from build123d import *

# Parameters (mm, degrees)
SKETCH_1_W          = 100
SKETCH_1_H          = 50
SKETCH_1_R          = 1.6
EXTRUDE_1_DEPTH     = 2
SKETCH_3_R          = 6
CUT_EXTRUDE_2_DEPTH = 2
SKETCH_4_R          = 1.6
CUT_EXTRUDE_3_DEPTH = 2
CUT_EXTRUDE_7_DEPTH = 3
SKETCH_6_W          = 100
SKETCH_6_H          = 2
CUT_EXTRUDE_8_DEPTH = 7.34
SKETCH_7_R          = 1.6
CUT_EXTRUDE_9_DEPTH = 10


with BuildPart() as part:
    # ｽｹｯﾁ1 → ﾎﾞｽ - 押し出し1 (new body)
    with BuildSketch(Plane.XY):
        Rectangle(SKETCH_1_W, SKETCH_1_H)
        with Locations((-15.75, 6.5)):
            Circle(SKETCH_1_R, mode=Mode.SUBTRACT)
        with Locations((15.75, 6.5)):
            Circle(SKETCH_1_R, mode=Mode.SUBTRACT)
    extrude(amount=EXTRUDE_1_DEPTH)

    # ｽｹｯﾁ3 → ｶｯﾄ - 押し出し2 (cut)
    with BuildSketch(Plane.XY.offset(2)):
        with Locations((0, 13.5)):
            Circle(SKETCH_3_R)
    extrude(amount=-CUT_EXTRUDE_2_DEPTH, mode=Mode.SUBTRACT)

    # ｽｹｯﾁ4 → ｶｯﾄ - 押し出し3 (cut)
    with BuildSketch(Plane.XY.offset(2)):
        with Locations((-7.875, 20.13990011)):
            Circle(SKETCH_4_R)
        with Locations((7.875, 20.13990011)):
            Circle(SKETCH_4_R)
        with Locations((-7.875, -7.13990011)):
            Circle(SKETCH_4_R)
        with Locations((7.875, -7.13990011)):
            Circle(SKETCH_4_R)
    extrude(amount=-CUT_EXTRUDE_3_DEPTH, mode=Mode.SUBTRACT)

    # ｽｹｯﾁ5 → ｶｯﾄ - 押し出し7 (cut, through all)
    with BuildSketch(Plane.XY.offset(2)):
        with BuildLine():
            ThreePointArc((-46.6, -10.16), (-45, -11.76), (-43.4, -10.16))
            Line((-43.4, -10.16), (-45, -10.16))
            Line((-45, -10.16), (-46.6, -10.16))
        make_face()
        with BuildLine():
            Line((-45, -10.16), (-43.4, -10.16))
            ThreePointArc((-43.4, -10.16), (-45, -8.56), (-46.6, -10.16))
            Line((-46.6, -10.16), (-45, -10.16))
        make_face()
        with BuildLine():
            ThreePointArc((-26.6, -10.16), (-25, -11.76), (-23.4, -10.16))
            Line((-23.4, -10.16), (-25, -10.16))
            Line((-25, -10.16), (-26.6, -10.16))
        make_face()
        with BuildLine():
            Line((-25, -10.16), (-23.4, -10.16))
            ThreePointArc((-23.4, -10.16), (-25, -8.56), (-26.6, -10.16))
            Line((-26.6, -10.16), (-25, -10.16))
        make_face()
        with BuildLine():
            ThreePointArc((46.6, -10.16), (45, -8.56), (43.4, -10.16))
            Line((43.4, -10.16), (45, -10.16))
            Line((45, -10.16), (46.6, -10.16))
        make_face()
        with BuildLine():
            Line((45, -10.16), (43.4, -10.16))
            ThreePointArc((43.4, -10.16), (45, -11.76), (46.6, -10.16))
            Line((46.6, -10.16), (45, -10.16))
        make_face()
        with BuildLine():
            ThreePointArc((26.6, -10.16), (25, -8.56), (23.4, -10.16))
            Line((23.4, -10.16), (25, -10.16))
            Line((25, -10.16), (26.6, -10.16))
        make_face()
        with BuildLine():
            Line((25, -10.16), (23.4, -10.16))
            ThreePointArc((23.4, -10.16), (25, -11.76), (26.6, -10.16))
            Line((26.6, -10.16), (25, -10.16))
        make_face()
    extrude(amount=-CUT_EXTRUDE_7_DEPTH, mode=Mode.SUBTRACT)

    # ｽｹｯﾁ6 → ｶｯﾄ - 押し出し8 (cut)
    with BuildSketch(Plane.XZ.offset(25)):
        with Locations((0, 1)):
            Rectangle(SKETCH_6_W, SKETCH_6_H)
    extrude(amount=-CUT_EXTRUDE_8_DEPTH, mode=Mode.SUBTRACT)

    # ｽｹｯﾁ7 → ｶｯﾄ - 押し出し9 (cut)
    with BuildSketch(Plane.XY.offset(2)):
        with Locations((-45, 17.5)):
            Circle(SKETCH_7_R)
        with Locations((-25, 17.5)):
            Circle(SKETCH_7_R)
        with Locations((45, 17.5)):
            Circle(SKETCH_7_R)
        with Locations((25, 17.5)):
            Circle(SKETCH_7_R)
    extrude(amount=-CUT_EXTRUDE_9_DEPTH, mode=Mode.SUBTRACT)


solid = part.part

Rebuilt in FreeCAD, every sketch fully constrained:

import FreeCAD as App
import Part
import Sketcher
Q = App.Units.Quantity

doc = App.newDocument("Part")
params = doc.addObject("Spreadsheet::Sheet", "Params")
for row, (alias, value) in enumerate([
    ("sketch1_diameter", "3.2 mm"),
    ("sketch1_width", "100 mm"),
    ("sketch1_height", "50 mm"),
    ("pad1_length", "2 mm"),
    ("sketch2_diameter", "12 mm"),
    ("pocket1_length", "2 mm"),
    ("sketch3_diameter", "3.2 mm"),
    ("pocket2_length", "2 mm"),
    ("sketch4_diameter", "3.2 mm"),
    ("sketch5_width", "100 mm"),
    ("sketch5_height", "2 mm"),
    ("pocket4_length", "7.34 mm"),
    ("sketch6_diameter", "3.2 mm"),
    ("pocket5_length", "10 mm"),
], start=1):
    params.set(f"A{row}", alias)
    params.set(f"B{row}", "=" + value)
    params.setAlias(f"B{row}", alias)

body = doc.addObject("PartDesign::Body", "Body")

# Sketch on XY plane
sketch1 = body.newObject("Sketcher::SketchObject", "Sketch")
sketch1.AttachmentSupport = (doc.getObject("XY_Plane"), [""])
sketch1.MapMode = "FlatFace"
sketch1.addGeometry(Part.LineSegment(App.Vector(-50, 25, 0), App.Vector(-50, -25, 0)), False)
sketch1.addGeometry(Part.LineSegment(App.Vector(-50, -25, 0), App.Vector(50, -25, 0)), False)
sketch1.addGeometry(Part.LineSegment(App.Vector(50, -25, 0), App.Vector(50, 25, 0)), False)
sketch1.addGeometry(Part.LineSegment(App.Vector(50, 25, 0), App.Vector(-50, 25, 0)), False)
sketch1.addGeometry(Part.Circle(App.Vector(-15.75, 6.5, 0), App.Vector(0, 0, 1), 1.6), False)
sketch1.addGeometry(Part.Circle(App.Vector(15.75, 6.5, 0), App.Vector(0, 0, 1), 1.6), False)
sketch1.addConstraint(Sketcher.Constraint("Coincident", 0, 2, 1, 1))
sketch1.addConstraint(Sketcher.Constraint("Coincident", 1, 2, 2, 1))
sketch1.addConstraint(Sketcher.Constraint("Coincident", 2, 2, 3, 1))
sketch1.addConstraint(Sketcher.Constraint("Coincident", 3, 2, 0, 1))
sketch1.addConstraint(Sketcher.Constraint("Vertical", 0))
sketch1.addConstraint(Sketcher.Constraint("Horizontal", 1))
sketch1.addConstraint(Sketcher.Constraint("Vertical", 2))
sketch1.addConstraint(Sketcher.Constraint("Horizontal", 3))
sketch1.addConstraint(Sketcher.Constraint("Equal", 4, 5))
sketch1.addConstraint(Sketcher.Constraint("Symmetric", 0, 2, 2, 2, -1, 1))
sketch1.addConstraint(Sketcher.Constraint("Symmetric", 4, 3, 5, 3, -2))
sketch1.addConstraint(Sketcher.Constraint("Diameter", 4, Q("3.2 mm")))
sketch1.addConstraint(Sketcher.Constraint("DistanceX", 1, 1, 1, 2, Q("100 mm")))
sketch1.addConstraint(Sketcher.Constraint("DistanceY", 0, 2, 0, 1, Q("50 mm")))
sketch1.addConstraint(Sketcher.Constraint("DistanceY", -1, 1, 4, 3, Q("6.5 mm")))
sketch1.addConstraint(Sketcher.Constraint("DistanceX", 4, 3, 5, 3, Q("31.5 mm")))
sketch1.setExpression("Constraints[11]", "Params.sketch1_diameter")
sketch1.setExpression("Constraints[12]", "Params.sketch1_width")
sketch1.setExpression("Constraints[13]", "Params.sketch1_height")
pad1 = body.newObject("PartDesign::Pad", "Pad")
pad1.Profile = sketch1
pad1.setExpression("Length", "Params.pad1_length")

# Sketch on XY plane
sketch2 = body.newObject("Sketcher::SketchObject", "Sketch001")
sketch2.AttachmentSupport = (doc.getObject("XY_Plane"), [""])
sketch2.MapMode = "FlatFace"
sketch2.AttachmentOffset = App.Placement(App.Vector(0, 0, 2), App.Rotation())
sketch2.addGeometry(Part.Circle(App.Vector(0, 13.5, 0), App.Vector(0, 0, 1), 6), False)
sketch2.addConstraint(Sketcher.Constraint("PointOnObject", 0, 3, -2))
sketch2.addConstraint(Sketcher.Constraint("Diameter", 0, Q("12 mm")))
sketch2.addConstraint(Sketcher.Constraint("DistanceY", -1, 1, 0, 3, Q("13.5 mm")))
sketch2.setExpression("Constraints[1]", "Params.sketch2_diameter")
pocket1 = body.newObject("PartDesign::Pocket", "Pocket")
pocket1.Profile = sketch2
pocket1.setExpression("Length", "Params.pocket1_length")

# Sketch on XY plane
sketch3 = body.newObject("Sketcher::SketchObject", "Sketch002")
sketch3.AttachmentSupport = (doc.getObject("XY_Plane"), [""])
sketch3.MapMode = "FlatFace"
sketch3.AttachmentOffset = App.Placement(App.Vector(0, 0, 2), App.Rotation())
sketch3.addGeometry(Part.Circle(App.Vector(-7.875, 20.1399, 0), App.Vector(0, 0, 1), 1.6), False)
sketch3.addGeometry(Part.Circle(App.Vector(7.875, 20.1399, 0), App.Vector(0, 0, 1), 1.6), False)
sketch3.addGeometry(Part.Circle(App.Vector(-7.875, -7.1399, 0), App.Vector(0, 0, 1), 1.6), False)
sketch3.addGeometry(Part.Circle(App.Vector(7.875, -7.1399, 0), App.Vector(0, 0, 1), 1.6), False)
sketch3.addConstraint(Sketcher.Constraint("Equal", 0, 1))
sketch3.addConstraint(Sketcher.Constraint("Equal", 1, 2))
sketch3.addConstraint(Sketcher.Constraint("Equal", 2, 3))
sketch3.addConstraint(Sketcher.Constraint("Symmetric", 0, 3, 1, 3, -2))
sketch3.addConstraint(Sketcher.Constraint("Symmetric", 2, 3, 3, 3, -2))
sketch3.addConstraint(Sketcher.Constraint("Vertical", 0, 3, 2, 3))
sketch3.addConstraint(Sketcher.Constraint("Diameter", 0, Q("3.2 mm")))
sketch3.addConstraint(Sketcher.Constraint("DistanceX", 0, 3, 1, 3, Q("15.75 mm")))
sketch3.addConstraint(Sketcher.Constraint("DistanceY", -1, 1, 0, 3, Q("20.1399 mm")))
sketch3.addConstraint(Sketcher.Constraint("DistanceY", 2, 3, -1, 1, Q("7.1399 mm")))
sketch3.setExpression("Constraints[6]", "Params.sketch3_diameter")
pocket2 = body.newObject("PartDesign::Pocket", "Pocket001")
pocket2.Profile = sketch3
pocket2.setExpression("Length", "Params.pocket2_length")

# Sketch on XY plane
sketch4 = body.newObject("Sketcher::SketchObject", "Sketch003")
sketch4.AttachmentSupport = (doc.getObject("XY_Plane"), [""])
sketch4.MapMode = "FlatFace"
sketch4.AttachmentOffset = App.Placement(App.Vector(0, 0, 2), App.Rotation())
sketch4.addGeometry(Part.Circle(App.Vector(-45, -10.16, 0), App.Vector(0, 0, 1), 1.6), False)
sketch4.addGeometry(Part.Circle(App.Vector(-25, -10.16, 0), App.Vector(0, 0, 1), 1.6), False)
sketch4.addGeometry(Part.Circle(App.Vector(45, -10.16, 0), App.Vector(0, 0, 1), 1.6), False)
sketch4.addGeometry(Part.Circle(App.Vector(25, -10.16, 0), App.Vector(0, 0, 1), 1.6), False)
sketch4.addConstraint(Sketcher.Constraint("Equal", 0, 1))
sketch4.addConstraint(Sketcher.Constraint("Equal", 1, 2))
sketch4.addConstraint(Sketcher.Constraint("Equal", 2, 3))
sketch4.addConstraint(Sketcher.Constraint("Symmetric", 0, 3, 2, 3, -2))
sketch4.addConstraint(Sketcher.Constraint("Symmetric", 1, 3, 3, 3, -2))
sketch4.addConstraint(Sketcher.Constraint("Horizontal", 0, 3, 1, 3))
sketch4.addConstraint(Sketcher.Constraint("Diameter", 0, Q("3.2 mm")))
sketch4.addConstraint(Sketcher.Constraint("DistanceX", 0, 3, -1, 1, Q("45 mm")))
sketch4.addConstraint(Sketcher.Constraint("DistanceX", 1, 3, -1, 1, Q("25 mm")))
sketch4.addConstraint(Sketcher.Constraint("DistanceY", 0, 3, -1, 1, Q("10.16 mm")))
sketch4.setExpression("Constraints[6]", "Params.sketch4_diameter")
pocket3 = body.newObject("PartDesign::Pocket", "Pocket002")
pocket3.Profile = sketch4
pocket3.Type = "ThroughAll"

# Sketch on XZ plane
sketch5 = body.newObject("Sketcher::SketchObject", "Sketch004")
sketch5.AttachmentSupport = (doc.getObject("XZ_Plane"), [""])
sketch5.MapMode = "FlatFace"
sketch5.AttachmentOffset = App.Placement(App.Vector(0, 0, 25), App.Rotation())
sketch5.addGeometry(Part.LineSegment(App.Vector(-50, 2, 0), App.Vector(-50, 0, 0)), False)
sketch5.addGeometry(Part.LineSegment(App.Vector(-50, 0, 0), App.Vector(50, 0, 0)), False)
sketch5.addGeometry(Part.LineSegment(App.Vector(50, 0, 0), App.Vector(50, 2, 0)), False)
sketch5.addGeometry(Part.LineSegment(App.Vector(50, 2, 0), App.Vector(-50, 2, 0)), False)
sketch5.addConstraint(Sketcher.Constraint("Coincident", 0, 2, 1, 1))
sketch5.addConstraint(Sketcher.Constraint("Coincident", 1, 2, 2, 1))
sketch5.addConstraint(Sketcher.Constraint("Coincident", 2, 2, 3, 1))
sketch5.addConstraint(Sketcher.Constraint("Coincident", 3, 2, 0, 1))
sketch5.addConstraint(Sketcher.Constraint("Vertical", 0))
sketch5.addConstraint(Sketcher.Constraint("Horizontal", 1))
sketch5.addConstraint(Sketcher.Constraint("Vertical", 2))
sketch5.addConstraint(Sketcher.Constraint("Horizontal", 3))
sketch5.addConstraint(Sketcher.Constraint("Symmetric", 0, 2, 1, 2, -1, 1))
sketch5.addConstraint(Sketcher.Constraint("DistanceX", 1, 1, 1, 2, Q("100 mm")))
sketch5.addConstraint(Sketcher.Constraint("DistanceY", 0, 2, 0, 1, Q("2 mm")))
sketch5.setExpression("Constraints[9]", "Params.sketch5_width")
sketch5.setExpression("Constraints[10]", "Params.sketch5_height")
pocket4 = body.newObject("PartDesign::Pocket", "Pocket003")
pocket4.Profile = sketch5
pocket4.setExpression("Length", "Params.pocket4_length")

# Sketch on XY plane
sketch6 = body.newObject("Sketcher::SketchObject", "Sketch005")
sketch6.AttachmentSupport = (doc.getObject("XY_Plane"), [""])
sketch6.MapMode = "FlatFace"
sketch6.AttachmentOffset = App.Placement(App.Vector(0, 0, 2), App.Rotation())
sketch6.addGeometry(Part.Circle(App.Vector(-45, 17.5, 0), App.Vector(0, 0, 1), 1.6), False)
sketch6.addGeometry(Part.Circle(App.Vector(-25, 17.5, 0), App.Vector(0, 0, 1), 1.6), False)
sketch6.addGeometry(Part.Circle(App.Vector(45, 17.5, 0), App.Vector(0, 0, 1), 1.6), False)
sketch6.addGeometry(Part.Circle(App.Vector(25, 17.5, 0), App.Vector(0, 0, 1), 1.6), False)
sketch6.addConstraint(Sketcher.Constraint("Equal", 0, 1))
sketch6.addConstraint(Sketcher.Constraint("Equal", 1, 2))
sketch6.addConstraint(Sketcher.Constraint("Equal", 2, 3))
sketch6.addConstraint(Sketcher.Constraint("Symmetric", 0, 3, 2, 3, -2))
sketch6.addConstraint(Sketcher.Constraint("Symmetric", 1, 3, 3, 3, -2))
sketch6.addConstraint(Sketcher.Constraint("Horizontal", 0, 3, 1, 3))
sketch6.addConstraint(Sketcher.Constraint("Diameter", 0, Q("3.2 mm")))
sketch6.addConstraint(Sketcher.Constraint("DistanceX", 0, 3, -1, 1, Q("45 mm")))
sketch6.addConstraint(Sketcher.Constraint("DistanceX", 1, 3, -1, 1, Q("25 mm")))
sketch6.addConstraint(Sketcher.Constraint("DistanceY", -1, 1, 0, 3, Q("17.5 mm")))
sketch6.setExpression("Constraints[6]", "Params.sketch6_diameter")
pocket5 = body.newObject("PartDesign::Pocket", "Pocket004")
pocket5.Profile = sketch6
pocket5.setExpression("Length", "Params.pocket5_length")

doc.recompute()
